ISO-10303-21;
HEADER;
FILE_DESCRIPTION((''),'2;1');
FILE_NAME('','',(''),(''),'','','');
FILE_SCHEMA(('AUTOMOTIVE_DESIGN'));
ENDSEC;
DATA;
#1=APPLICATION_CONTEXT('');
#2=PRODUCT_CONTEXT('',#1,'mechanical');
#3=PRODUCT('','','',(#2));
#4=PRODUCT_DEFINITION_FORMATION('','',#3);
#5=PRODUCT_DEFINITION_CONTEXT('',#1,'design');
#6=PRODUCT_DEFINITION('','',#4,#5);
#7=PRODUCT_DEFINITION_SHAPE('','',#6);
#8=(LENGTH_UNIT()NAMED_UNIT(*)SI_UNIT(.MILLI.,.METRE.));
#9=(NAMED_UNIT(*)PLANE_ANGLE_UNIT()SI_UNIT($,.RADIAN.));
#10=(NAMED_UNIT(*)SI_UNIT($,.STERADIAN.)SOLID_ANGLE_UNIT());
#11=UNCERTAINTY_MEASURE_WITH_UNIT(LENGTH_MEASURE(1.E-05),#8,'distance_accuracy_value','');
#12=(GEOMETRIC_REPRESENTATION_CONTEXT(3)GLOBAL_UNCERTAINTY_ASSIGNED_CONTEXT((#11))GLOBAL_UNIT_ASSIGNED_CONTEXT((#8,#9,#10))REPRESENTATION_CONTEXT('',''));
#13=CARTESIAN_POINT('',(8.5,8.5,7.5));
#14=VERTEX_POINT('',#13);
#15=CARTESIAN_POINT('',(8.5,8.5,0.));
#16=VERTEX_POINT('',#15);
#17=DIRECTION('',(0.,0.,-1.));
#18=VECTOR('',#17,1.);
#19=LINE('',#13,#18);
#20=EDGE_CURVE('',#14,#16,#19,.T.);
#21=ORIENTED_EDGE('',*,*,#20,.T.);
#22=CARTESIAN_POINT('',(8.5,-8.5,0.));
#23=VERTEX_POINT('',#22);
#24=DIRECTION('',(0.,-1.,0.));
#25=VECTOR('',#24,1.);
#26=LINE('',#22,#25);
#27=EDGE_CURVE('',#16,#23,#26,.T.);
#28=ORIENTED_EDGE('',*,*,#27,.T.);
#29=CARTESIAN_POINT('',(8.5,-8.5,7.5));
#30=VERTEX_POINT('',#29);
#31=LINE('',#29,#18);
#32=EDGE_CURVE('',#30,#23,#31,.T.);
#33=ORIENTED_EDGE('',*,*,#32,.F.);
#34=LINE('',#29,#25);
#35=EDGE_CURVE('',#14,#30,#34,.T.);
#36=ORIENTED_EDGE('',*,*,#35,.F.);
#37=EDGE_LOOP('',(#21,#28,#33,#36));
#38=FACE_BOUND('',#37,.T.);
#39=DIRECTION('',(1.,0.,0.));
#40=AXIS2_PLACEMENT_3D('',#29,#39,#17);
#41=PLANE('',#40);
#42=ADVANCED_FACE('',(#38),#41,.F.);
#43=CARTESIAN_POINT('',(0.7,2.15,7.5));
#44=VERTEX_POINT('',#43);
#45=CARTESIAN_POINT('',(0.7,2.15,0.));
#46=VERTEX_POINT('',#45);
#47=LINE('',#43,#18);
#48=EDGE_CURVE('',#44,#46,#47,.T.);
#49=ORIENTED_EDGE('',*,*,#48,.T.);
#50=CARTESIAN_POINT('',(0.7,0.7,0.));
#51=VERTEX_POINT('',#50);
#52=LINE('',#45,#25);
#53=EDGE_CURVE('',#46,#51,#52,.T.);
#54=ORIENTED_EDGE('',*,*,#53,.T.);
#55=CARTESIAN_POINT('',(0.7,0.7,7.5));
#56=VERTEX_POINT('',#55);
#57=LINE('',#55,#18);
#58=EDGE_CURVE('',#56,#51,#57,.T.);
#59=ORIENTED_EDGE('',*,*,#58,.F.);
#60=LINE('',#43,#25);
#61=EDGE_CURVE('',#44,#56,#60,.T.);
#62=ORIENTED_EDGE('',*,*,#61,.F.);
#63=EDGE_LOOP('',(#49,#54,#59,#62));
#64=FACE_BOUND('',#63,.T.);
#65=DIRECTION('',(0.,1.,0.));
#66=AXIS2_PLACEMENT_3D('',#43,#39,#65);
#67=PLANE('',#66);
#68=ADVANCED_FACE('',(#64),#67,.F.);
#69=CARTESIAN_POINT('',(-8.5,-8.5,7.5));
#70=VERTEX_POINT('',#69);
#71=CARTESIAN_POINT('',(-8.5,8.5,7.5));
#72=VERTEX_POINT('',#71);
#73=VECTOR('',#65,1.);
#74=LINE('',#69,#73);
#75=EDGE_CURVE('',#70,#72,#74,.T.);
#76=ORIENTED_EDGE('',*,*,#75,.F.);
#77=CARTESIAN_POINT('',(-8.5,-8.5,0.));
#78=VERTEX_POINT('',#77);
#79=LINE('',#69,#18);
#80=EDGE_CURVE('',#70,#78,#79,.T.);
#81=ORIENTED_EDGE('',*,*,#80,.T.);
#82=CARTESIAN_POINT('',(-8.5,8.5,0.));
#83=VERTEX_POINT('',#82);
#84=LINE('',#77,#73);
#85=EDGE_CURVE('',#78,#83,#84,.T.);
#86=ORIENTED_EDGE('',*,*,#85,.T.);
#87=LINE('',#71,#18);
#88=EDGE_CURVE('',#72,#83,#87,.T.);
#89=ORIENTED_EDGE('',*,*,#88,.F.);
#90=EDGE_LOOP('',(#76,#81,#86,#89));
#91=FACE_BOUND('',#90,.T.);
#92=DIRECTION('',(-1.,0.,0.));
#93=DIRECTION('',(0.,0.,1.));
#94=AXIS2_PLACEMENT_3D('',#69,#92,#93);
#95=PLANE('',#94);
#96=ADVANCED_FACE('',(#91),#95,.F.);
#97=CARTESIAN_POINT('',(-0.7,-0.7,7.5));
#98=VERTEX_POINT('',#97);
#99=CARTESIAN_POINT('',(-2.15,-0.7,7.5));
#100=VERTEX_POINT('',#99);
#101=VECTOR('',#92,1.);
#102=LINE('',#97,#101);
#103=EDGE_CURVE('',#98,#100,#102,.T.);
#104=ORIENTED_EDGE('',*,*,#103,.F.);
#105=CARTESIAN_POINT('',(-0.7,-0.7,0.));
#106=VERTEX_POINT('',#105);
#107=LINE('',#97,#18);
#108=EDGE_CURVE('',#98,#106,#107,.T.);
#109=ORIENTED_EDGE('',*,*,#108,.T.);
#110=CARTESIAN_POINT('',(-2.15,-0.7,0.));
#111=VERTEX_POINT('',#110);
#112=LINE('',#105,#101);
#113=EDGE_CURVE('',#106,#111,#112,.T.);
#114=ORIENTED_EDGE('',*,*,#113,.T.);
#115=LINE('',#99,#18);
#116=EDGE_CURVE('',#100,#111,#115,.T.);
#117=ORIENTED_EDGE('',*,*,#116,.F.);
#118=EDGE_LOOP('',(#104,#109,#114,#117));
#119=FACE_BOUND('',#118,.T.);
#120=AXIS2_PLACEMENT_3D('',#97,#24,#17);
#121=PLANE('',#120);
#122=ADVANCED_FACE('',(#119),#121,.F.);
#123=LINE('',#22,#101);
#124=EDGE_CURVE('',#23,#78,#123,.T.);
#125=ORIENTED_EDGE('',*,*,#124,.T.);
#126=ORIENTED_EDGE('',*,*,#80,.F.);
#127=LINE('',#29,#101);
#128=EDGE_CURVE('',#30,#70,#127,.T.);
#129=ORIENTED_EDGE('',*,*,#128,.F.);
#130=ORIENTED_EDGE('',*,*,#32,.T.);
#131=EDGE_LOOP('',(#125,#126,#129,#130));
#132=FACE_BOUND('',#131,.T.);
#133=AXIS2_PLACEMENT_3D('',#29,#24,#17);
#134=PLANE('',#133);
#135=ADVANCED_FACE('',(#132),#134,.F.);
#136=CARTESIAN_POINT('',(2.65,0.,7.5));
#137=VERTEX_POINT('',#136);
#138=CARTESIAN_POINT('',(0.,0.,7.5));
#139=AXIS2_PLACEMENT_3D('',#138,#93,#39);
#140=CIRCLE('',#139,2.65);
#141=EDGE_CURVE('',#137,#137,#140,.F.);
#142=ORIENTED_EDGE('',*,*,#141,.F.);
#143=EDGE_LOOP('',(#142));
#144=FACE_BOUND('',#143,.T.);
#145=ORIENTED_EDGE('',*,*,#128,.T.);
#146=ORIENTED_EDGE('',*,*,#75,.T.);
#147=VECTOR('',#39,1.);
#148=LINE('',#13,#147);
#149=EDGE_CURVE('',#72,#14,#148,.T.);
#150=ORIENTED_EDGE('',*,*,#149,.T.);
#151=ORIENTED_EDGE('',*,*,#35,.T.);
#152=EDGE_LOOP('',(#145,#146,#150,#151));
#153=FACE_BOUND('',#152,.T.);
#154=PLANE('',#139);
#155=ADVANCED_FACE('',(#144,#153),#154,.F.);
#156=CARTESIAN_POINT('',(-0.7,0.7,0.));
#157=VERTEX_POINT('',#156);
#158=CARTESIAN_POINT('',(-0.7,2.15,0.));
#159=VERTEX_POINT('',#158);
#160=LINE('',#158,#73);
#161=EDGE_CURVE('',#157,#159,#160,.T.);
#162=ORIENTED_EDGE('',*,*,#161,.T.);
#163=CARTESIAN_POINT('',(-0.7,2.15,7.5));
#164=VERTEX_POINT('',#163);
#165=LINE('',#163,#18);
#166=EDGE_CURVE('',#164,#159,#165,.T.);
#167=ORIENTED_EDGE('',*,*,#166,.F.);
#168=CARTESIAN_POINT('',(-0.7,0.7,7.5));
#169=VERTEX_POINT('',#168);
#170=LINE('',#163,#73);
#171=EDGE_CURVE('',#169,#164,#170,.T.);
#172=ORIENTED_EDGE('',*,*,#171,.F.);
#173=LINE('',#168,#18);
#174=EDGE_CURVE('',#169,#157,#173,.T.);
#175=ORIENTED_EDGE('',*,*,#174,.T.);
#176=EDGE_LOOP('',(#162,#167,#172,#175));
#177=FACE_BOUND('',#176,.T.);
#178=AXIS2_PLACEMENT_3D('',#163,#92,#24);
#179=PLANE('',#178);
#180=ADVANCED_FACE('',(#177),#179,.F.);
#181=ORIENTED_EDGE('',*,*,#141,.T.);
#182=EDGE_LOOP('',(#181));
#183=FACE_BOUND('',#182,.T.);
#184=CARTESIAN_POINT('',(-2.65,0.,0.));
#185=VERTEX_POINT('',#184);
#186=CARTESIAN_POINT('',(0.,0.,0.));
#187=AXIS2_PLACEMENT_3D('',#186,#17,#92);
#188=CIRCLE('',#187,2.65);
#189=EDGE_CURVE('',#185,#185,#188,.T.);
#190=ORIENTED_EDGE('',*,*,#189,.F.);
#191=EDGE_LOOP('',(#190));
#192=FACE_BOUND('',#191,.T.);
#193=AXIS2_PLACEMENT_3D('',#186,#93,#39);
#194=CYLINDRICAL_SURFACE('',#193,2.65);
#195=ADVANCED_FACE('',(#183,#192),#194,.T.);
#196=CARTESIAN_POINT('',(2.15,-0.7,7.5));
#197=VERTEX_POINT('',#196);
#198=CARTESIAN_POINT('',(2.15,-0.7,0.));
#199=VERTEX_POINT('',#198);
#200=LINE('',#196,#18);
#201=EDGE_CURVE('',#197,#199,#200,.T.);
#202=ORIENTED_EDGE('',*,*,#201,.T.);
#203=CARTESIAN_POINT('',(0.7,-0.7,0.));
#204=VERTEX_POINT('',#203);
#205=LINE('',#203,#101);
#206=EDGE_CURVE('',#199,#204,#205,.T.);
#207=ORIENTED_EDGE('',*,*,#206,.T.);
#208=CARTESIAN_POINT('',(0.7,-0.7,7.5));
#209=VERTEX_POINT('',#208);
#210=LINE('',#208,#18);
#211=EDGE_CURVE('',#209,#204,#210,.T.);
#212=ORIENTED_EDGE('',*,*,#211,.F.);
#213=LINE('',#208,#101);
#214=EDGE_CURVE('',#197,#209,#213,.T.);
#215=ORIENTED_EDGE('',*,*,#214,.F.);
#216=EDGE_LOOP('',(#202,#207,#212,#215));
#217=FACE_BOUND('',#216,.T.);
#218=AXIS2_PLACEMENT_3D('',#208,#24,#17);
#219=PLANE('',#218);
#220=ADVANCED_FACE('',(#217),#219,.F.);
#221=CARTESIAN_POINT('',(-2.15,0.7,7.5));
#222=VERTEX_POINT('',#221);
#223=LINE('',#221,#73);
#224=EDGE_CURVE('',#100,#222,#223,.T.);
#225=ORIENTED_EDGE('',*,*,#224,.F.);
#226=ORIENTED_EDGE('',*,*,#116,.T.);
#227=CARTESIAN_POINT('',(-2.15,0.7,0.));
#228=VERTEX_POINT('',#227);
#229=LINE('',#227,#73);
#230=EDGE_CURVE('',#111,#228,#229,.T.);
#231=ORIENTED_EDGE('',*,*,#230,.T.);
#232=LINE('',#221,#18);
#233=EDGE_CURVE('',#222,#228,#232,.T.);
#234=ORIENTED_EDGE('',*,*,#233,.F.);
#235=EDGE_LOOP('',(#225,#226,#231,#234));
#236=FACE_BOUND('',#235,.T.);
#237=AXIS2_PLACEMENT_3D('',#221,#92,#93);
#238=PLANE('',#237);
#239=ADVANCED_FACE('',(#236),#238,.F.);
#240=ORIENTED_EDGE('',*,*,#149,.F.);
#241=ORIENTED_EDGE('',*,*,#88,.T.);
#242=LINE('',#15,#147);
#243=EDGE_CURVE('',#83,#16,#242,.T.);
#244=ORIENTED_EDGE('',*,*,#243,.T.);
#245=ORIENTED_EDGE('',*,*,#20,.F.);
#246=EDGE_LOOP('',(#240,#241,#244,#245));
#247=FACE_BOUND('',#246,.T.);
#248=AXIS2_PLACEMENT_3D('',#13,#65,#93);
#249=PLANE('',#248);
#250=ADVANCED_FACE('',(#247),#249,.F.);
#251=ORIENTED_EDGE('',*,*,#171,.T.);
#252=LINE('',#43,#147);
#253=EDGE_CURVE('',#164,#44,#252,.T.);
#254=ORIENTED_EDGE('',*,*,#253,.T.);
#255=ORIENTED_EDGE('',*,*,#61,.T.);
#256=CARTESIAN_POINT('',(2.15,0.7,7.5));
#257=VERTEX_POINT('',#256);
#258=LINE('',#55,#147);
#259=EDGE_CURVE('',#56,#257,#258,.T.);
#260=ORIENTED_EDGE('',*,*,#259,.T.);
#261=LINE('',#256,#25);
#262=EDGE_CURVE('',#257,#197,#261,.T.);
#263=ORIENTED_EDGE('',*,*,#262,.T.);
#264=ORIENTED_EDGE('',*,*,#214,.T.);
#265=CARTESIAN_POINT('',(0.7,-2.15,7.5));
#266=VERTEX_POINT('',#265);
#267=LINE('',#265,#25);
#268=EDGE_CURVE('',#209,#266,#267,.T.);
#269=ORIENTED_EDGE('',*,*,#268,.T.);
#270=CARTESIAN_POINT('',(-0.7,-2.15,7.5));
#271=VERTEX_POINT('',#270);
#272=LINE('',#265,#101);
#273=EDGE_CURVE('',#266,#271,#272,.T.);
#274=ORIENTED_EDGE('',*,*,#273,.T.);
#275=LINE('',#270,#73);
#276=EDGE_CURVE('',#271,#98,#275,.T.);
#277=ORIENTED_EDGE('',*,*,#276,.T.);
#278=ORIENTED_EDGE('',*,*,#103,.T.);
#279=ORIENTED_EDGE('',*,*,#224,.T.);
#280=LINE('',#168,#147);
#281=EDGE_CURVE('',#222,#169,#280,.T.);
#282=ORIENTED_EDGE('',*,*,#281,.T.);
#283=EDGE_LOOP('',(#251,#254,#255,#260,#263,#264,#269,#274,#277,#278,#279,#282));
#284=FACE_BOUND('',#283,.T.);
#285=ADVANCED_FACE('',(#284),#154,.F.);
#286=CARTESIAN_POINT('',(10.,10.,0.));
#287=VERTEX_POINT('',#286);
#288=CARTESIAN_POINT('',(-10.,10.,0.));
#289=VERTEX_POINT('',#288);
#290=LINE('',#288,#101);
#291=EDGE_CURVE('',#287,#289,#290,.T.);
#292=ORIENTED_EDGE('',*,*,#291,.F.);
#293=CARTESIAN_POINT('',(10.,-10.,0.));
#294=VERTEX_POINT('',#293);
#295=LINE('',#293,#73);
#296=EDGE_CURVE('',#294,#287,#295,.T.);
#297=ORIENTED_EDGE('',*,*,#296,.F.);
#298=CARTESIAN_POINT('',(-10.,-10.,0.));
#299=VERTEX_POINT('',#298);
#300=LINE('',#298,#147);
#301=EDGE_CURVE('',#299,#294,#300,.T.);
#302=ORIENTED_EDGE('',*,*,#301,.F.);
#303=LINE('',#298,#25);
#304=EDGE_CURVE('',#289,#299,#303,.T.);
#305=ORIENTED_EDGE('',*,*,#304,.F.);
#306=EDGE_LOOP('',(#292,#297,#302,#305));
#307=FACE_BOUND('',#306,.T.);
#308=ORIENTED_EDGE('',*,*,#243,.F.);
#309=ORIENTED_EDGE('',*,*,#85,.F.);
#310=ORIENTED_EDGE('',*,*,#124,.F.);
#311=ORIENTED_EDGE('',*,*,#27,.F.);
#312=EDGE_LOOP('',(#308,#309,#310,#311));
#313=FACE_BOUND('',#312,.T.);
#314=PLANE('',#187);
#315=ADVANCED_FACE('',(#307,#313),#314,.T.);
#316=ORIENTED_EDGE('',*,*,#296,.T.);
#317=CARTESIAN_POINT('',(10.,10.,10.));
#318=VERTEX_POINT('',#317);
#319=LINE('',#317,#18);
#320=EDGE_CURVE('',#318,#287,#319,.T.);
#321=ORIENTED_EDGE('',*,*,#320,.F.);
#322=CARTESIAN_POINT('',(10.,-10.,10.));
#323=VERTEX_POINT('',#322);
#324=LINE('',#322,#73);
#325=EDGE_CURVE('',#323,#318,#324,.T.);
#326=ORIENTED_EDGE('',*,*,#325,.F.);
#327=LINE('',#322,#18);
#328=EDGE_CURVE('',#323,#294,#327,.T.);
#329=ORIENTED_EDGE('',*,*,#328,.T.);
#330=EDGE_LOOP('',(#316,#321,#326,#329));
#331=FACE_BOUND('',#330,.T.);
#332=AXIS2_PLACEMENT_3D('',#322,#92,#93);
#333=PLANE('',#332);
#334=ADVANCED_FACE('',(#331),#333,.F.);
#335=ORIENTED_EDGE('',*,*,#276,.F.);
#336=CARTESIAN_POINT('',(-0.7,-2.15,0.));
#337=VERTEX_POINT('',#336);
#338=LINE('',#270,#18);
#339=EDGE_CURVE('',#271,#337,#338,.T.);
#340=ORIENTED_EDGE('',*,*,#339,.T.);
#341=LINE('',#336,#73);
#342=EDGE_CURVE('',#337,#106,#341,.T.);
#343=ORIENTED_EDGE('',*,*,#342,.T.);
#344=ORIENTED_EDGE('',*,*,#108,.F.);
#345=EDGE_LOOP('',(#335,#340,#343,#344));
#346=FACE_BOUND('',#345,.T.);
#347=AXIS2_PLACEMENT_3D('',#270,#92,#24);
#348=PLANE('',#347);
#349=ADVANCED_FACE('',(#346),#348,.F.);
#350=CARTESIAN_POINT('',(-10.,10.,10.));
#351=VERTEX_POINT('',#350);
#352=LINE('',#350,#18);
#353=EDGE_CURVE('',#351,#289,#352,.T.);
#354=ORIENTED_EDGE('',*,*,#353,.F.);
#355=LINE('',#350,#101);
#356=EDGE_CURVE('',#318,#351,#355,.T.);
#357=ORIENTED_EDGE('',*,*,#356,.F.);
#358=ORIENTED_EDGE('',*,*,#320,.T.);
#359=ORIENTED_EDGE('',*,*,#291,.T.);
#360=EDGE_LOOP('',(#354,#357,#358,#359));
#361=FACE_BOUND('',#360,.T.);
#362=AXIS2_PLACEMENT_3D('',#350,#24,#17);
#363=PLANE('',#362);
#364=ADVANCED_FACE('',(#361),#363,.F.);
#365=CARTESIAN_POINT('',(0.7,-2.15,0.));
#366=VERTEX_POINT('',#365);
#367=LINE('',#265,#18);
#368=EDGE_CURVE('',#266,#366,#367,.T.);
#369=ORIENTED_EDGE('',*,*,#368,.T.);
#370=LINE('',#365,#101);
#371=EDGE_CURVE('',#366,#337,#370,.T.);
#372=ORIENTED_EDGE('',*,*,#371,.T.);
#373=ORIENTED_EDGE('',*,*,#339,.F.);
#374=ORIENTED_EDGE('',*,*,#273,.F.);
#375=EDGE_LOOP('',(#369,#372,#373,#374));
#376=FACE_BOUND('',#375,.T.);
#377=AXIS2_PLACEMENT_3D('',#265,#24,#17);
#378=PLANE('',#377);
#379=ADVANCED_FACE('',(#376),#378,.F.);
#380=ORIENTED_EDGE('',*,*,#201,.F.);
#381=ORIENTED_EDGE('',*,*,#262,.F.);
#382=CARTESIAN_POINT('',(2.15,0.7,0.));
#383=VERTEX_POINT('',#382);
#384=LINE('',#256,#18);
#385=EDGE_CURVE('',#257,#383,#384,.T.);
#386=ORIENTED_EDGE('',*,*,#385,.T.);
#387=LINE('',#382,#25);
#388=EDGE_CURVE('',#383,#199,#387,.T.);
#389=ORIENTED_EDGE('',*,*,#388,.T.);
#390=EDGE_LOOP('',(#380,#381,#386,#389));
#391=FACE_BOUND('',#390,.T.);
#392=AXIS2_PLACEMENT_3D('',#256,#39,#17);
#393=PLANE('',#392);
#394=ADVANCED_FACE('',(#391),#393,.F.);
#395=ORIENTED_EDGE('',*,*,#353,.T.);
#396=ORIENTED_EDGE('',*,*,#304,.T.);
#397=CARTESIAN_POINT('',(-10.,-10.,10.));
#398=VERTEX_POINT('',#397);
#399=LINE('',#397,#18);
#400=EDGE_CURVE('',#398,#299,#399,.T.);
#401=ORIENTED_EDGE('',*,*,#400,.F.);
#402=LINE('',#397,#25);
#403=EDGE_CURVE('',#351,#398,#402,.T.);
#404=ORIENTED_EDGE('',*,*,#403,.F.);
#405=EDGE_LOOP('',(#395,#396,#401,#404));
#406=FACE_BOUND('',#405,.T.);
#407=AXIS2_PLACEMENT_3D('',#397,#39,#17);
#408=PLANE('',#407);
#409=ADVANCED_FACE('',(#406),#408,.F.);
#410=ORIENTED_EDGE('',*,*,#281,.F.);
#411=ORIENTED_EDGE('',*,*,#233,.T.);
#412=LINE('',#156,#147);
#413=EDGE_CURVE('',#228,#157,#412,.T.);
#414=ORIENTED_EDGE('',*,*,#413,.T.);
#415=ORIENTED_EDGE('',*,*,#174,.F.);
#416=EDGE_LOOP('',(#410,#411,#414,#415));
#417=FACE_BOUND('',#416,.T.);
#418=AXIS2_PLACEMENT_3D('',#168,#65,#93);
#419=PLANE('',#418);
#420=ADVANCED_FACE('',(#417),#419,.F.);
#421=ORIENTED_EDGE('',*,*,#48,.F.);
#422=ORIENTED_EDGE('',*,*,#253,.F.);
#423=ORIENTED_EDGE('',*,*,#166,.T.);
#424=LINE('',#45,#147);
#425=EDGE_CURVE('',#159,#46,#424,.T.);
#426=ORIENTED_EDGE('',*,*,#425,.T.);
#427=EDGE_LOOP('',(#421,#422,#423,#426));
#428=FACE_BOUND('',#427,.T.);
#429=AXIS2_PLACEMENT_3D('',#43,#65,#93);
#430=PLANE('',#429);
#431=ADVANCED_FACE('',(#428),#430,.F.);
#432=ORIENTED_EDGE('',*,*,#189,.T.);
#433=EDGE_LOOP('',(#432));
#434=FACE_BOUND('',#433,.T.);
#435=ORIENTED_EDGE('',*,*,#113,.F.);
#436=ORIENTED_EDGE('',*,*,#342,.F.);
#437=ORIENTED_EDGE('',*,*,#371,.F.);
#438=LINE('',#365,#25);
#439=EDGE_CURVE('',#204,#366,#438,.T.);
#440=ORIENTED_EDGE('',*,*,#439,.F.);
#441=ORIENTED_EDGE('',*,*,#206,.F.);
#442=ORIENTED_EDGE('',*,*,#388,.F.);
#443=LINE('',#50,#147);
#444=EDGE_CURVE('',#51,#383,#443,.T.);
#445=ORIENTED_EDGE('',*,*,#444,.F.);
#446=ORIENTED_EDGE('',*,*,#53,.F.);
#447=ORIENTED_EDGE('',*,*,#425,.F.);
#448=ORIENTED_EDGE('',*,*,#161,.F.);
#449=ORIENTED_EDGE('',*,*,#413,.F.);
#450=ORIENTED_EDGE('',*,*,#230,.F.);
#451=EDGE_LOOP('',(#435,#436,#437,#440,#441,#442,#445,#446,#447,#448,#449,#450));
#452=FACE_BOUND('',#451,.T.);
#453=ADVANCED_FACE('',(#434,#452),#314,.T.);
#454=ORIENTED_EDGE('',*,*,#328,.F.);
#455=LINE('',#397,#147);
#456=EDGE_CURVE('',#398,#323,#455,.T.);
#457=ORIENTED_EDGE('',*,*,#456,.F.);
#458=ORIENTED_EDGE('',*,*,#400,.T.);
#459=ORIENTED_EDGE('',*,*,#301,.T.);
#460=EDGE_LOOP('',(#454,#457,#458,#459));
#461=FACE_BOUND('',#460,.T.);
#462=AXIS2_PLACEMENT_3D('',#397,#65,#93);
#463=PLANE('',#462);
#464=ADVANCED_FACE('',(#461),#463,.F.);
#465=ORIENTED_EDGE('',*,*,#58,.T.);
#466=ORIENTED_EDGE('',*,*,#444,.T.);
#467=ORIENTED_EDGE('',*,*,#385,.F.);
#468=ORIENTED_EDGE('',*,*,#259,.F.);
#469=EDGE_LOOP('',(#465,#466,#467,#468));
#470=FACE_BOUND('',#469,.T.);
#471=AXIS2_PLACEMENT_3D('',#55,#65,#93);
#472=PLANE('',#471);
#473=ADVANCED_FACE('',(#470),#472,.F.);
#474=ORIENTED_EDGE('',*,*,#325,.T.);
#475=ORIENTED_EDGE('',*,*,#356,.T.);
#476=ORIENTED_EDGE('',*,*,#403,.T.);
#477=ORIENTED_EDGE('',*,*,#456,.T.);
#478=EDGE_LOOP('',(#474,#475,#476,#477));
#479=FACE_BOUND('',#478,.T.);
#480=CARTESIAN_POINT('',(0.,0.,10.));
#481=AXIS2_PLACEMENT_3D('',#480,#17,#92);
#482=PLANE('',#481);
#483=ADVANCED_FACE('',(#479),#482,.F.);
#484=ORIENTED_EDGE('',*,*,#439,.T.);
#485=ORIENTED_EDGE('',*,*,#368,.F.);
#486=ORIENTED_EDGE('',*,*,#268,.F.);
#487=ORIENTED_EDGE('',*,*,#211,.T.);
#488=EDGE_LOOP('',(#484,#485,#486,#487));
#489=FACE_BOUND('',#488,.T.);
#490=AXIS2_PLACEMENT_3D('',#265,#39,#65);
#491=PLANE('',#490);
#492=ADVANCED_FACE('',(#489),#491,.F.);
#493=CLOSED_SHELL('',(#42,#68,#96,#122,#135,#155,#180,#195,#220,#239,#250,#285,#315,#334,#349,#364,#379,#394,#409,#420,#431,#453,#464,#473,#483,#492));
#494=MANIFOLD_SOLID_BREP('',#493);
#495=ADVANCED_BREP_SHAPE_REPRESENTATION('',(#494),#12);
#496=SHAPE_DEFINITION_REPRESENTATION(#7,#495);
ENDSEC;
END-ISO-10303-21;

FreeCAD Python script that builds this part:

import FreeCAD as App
import Part
import Sketcher


def add_polygon(sketch, points):
    """Adds a closed chain of lines whose ends are joined by coincident constraints."""
    first, n = sketch.GeometryCount, len(points)
    for a, b in zip(points, points[1:] + points[:1]):
        sketch.addGeometry(Part.LineSegment(App.Vector(*a, 0), App.Vector(*b, 0)), False)
    for i in range(n):
        sketch.addConstraint(Sketcher.Constraint("Coincident", first + i, 2, first + (i + 1) % n, 1))

doc = App.newDocument("Part")
body = doc.addObject("PartDesign::Body", "Body")

# Sketch on XY plane
sketch1 = body.newObject("Sketcher::SketchObject", "Sketch")
sketch1.AttachmentSupport = (doc.getObject("XY_Plane"), [""])
sketch1.MapMode = "FlatFace"
add_polygon(sketch1, [(-10, 10), (-10, -10), (10, -10), (10, 10)])  # lines 0-3
sketch1.addConstraint(Sketcher.Constraint("Vertical", 0))
sketch1.addConstraint(Sketcher.Constraint("Horizontal", 1))
sketch1.addConstraint(Sketcher.Constraint("Vertical", 2))
sketch1.addConstraint(Sketcher.Constraint("Horizontal", 3))
sketch1.addConstraint(Sketcher.Constraint("Symmetric", 0, 2, 2, 2, -1, 1))
sketch1.addConstraint(Sketcher.Constraint("Equal", 3, 0))
sketch1.addConstraint(Sketcher.Constraint("DistanceX", 1, 1, 1, 2, 20.0))
pad1 = body.newObject("PartDesign::Pad", "Pad")
pad1.Profile = sketch1
pad1.Length = 10

# Sketch on XY plane
sketch2 = body.newObject("Sketcher::SketchObject", "Sketch001")
sketch2.AttachmentSupport = (doc.getObject("XY_Plane"), [""])
sketch2.MapMode = "FlatFace"
add_polygon(sketch2, [(8, 8), (8, -8), (-8, -8), (-8, 8)])  # lines 0-3
sketch2.addConstraint(Sketcher.Constraint("Vertical", 0))
sketch2.addConstraint(Sketcher.Constraint("Horizontal", 1))
sketch2.addConstraint(Sketcher.Constraint("Vertical", 2))
sketch2.addConstraint(Sketcher.Constraint("Horizontal", 3))
sketch2.addConstraint(Sketcher.Constraint("Symmetric", 0, 2, 2, 2, -1, 1))
sketch2.addConstraint(Sketcher.Constraint("Equal", 3, 0))
sketch2.addConstraint(Sketcher.Constraint("DistanceX", 1, 2, 1, 1, 17.0))
pocket1 = body.newObject("PartDesign::Pocket", "Pocket")
pocket1.Profile = sketch2
pocket1.Length = 7.5
pocket1.Reversed = True

# Sketch on XY plane
sketch3 = body.newObject("Sketcher::SketchObject", "Sketch002")
sketch3.AttachmentSupport = (doc.getObject("XY_Plane"), [""])
sketch3.MapMode = "FlatFace"
sketch3.AttachmentOffset = App.Placement(App.Vector(0, 0, 7.5), App.Rotation())
sketch3.addGeometry(Part.Circle(App.Vector(0, 0, 0), App.Vector(0, 0, 1), 2.6), False)
sketch3.addConstraint(Sketcher.Constraint("Coincident", 0, 3, -1, 1))
sketch3.addConstraint(Sketcher.Constraint("Diameter", 0, 5.3))
pad2 = body.newObject("PartDesign::Pad", "Pad001")
pad2.Profile = sketch3
pad2.Length = 7.5
pad2.Reversed = True

# Sketch on XY plane
sketch4 = body.newObject("Sketcher::SketchObject", "Sketch003")
sketch4.AttachmentSupport = (doc.getObject("XY_Plane"), [""])
sketch4.MapMode = "FlatFace"
add_polygon(sketch4, [(-0.7, 2.1), (0.7, 2.1), (0.7, 0.7), (2.1, 0.7), (2.1, -0.7), (0.7, -0.7), (0.7, -2.1), (-0.7, -2.1), (-0.7, -0.7), (-2.1, -0.7), (-2.1, 0.7), (-0.7, 0.7)])  # lines 0-11
sketch4.addConstraint(Sketcher.Constraint("Horizontal", 0))
sketch4.addConstraint(Sketcher.Constraint("Vertical", 1))
sketch4.addConstraint(Sketcher.Constraint("Horizontal", 2))
sketch4.addConstraint(Sketcher.Constraint("Vertical", 3))
sketch4.addConstraint(Sketcher.Constraint("Horizontal", 4))
sketch4.addConstraint(Sketcher.Constraint("Vertical", 5))
sketch4.addConstraint(Sketcher.Constraint("Horizontal", 6))
sketch4.addConstraint(Sketcher.Constraint("Vertical", 7))
sketch4.addConstraint(Sketcher.Constraint("Horizontal", 8))
sketch4.addConstraint(Sketcher.Constraint("Vertical", 9))
sketch4.addConstraint(Sketcher.Constraint("Horizontal", 10))
sketch4.addConstraint(Sketcher.Constraint("Vertical", 11))
sketch4.addConstraint(Sketcher.Constraint("Symmetric", 0, 2, 6, 2, -1, 1))
sketch4.addConstraint(Sketcher.Constraint("Symmetric", 2, 2, 8, 2, -1, 1))
sketch4.addConstraint(Sketcher.Constraint("Symmetric", 4, 2, 10, 2, -1, 1))
sketch4.addConstraint(Sketcher.Constraint("Symmetric", 4, 2, 7, 2, -2))
sketch4.addConstraint(Sketcher.Constraint("Equal", 10, 1))
sketch4.addConstraint(Sketcher.Constraint("Equal", 6, 3))
sketch4.addConstraint(Sketcher.Constraint("DistanceX", 0, 1, 0, 2, 1.4))
sketch4.addConstraint(Sketcher.Constraint("DistanceX", 2, 1, 2, 2, 1.45))
pocket2 = body.newObject("PartDesign::Pocket", "Pocket001")
pocket2.Profile = sketch4
pocket2.Length = 7.5
pocket2.Reversed = True

doc.recompute()
